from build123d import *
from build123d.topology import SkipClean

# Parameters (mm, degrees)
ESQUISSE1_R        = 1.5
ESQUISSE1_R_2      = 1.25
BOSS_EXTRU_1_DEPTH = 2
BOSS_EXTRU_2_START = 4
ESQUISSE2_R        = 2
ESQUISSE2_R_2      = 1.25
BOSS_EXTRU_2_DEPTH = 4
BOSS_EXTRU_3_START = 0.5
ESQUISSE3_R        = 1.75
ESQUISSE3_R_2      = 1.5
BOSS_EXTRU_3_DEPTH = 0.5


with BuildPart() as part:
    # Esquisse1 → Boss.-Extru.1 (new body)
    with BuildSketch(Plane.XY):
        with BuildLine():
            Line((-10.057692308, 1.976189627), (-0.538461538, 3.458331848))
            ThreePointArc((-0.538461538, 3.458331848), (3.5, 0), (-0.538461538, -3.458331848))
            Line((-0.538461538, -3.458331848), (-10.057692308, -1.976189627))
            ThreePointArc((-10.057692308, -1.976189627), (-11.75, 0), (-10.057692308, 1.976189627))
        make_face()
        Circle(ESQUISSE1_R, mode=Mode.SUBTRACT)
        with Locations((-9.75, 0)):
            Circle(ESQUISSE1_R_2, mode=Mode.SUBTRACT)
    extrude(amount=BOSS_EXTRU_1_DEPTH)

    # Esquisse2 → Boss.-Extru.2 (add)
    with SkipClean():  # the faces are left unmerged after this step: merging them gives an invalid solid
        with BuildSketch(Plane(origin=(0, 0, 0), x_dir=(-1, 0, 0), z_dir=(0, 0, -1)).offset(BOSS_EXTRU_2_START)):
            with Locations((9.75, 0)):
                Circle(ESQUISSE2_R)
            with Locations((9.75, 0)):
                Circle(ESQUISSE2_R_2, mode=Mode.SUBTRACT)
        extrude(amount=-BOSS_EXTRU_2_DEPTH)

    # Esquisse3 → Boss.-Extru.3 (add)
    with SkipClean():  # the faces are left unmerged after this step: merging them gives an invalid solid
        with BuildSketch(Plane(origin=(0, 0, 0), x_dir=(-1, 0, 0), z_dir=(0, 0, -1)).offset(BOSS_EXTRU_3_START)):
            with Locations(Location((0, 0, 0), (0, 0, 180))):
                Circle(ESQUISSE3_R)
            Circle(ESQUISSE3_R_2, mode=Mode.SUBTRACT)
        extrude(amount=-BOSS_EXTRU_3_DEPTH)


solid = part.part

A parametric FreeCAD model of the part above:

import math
import FreeCAD as App
import Part
import Sketcher

V = App.Vector

doc = App.newDocument("Part")
body = doc.addObject("PartDesign::Body", "Body")

# Sketch on XY plane
sketch1 = body.newObject("Sketcher::SketchObject", "Sketch")
sketch1.AttachmentSupport = (doc.getObject("XY_Plane"), [""])
sketch1.MapMode = "FlatFace"
sketch1.addGeometry([
    Part.LineSegment(V(-0.5, 3.5, 0), V(-10.1, 2, 0)),  # 0
    Part.ArcOfCircle(Part.Circle(V(-9.8, 0, 0), V(0, 0, 1), 2), math.radians(99), math.radians(261)),  # 1
    Part.LineSegment(V(-10.1, -2, 0), V(-0.5, -3.5, 0)),  # 2
    Part.ArcOfCircle(Part.Circle(V(0, 0, 0), V(0, 0, 1), 3.5), math.radians(-99), math.radians(99)),  # 3
    Part.Circle(V(0, 0, 0), V(0, 0, 1), 1.5),  # 4
    Part.Circle(V(-9.8, 0, 0), V(0, 0, 1), 1.2),  # 5
], False)
sketch1.addConstraint([
    Sketcher.Constraint("Tangent", 0, 2, 1, 1),
    Sketcher.Constraint("Tangent", 1, 2, 2, 1),
    Sketcher.Constraint("Tangent", 2, 2, 3, 1),
    Sketcher.Constraint("Tangent", 3, 2, 0, 1),
    Sketcher.Constraint("Coincident", 3, 3, -1, 1),
    Sketcher.Constraint("Coincident", 4, 3, -1, 1),
    Sketcher.Constraint("Coincident", 5, 3, 1, 3),
    Sketcher.Constraint("PointOnObject", 1, 3, -1),
    Sketcher.Constraint("Diameter", 4, 3.0),
    Sketcher.Constraint("Radius", 1, 2.0),
    Sketcher.Constraint("Diameter", 5, 2.5),
    Sketcher.Constraint("Radius", 3, 3.5),
    Sketcher.Constraint("DistanceX", 1, 3, -1, 1, 9.75),
])
pad1 = body.newObject("PartDesign::Pad", "Pad")
pad1.Profile = sketch1
pad1.Length = 2

# Sketch on XY plane
sketch2 = body.newObject("Sketcher::SketchObject", "Sketch001")
sketch2.AttachmentSupport = (doc.getObject("XY_Plane"), [""])
sketch2.MapMode = "FlatFace"
sketch2.AttachmentOffset = App.Placement(V(0, 0, -4), App.Rotation())
sketch2.addGeometry([
    Part.Circle(V(-9.8, 0, 0), V(0, 0, 1), 2),
    Part.Circle(V(-9.8, 0, 0), V(0, 0, 1), 1.2),
], False)
sketch2.addConstraint([
    Sketcher.Constraint("Coincident", 1, 3, 0, 3),
    Sketcher.Constraint("PointOnObject", 0, 3, -1),
    Sketcher.Constraint("Diameter", 0, 4.0),
    Sketcher.Constraint("Diameter", 1, 2.5),
    Sketcher.Constraint("DistanceX", 0, 3, -1, 1, 9.75),
])
pad2 = body.newObject("PartDesign::Pad", "Pad001")
pad2.Profile = sketch2
pad2.Length = 4

# Sketch on XY plane
sketch3 = body.newObject("Sketcher::SketchObject", "Sketch002")
sketch3.AttachmentSupport = (doc.getObject("XY_Plane"), [""])
sketch3.MapMode = "FlatFace"
sketch3.AttachmentOffset = App.Placement(V(0, 0, -0.5), App.Rotation())
sketch3.addGeometry([
    Part.Circle(V(0, 0, 0), V(0, 0, 1), 1.8),
    Part.Circle(V(0, 0, 0), V(0, 0, 1), 1.5),
], False)
sketch3.addConstraint([
    Sketcher.Constraint("Coincident", 0, 3, -1, 1),
    Sketcher.Constraint("Coincident", 1, 3, -1, 1),
    Sketcher.Constraint("Diameter", 1, 3.0),
    Sketcher.Constraint("Diameter", 0, 3.5),
])
pad3 = body.newObject("PartDesign::Pad", "Pad002")
pad3.Profile = sketch3
pad3.Length = 0.5

doc.recompute()
